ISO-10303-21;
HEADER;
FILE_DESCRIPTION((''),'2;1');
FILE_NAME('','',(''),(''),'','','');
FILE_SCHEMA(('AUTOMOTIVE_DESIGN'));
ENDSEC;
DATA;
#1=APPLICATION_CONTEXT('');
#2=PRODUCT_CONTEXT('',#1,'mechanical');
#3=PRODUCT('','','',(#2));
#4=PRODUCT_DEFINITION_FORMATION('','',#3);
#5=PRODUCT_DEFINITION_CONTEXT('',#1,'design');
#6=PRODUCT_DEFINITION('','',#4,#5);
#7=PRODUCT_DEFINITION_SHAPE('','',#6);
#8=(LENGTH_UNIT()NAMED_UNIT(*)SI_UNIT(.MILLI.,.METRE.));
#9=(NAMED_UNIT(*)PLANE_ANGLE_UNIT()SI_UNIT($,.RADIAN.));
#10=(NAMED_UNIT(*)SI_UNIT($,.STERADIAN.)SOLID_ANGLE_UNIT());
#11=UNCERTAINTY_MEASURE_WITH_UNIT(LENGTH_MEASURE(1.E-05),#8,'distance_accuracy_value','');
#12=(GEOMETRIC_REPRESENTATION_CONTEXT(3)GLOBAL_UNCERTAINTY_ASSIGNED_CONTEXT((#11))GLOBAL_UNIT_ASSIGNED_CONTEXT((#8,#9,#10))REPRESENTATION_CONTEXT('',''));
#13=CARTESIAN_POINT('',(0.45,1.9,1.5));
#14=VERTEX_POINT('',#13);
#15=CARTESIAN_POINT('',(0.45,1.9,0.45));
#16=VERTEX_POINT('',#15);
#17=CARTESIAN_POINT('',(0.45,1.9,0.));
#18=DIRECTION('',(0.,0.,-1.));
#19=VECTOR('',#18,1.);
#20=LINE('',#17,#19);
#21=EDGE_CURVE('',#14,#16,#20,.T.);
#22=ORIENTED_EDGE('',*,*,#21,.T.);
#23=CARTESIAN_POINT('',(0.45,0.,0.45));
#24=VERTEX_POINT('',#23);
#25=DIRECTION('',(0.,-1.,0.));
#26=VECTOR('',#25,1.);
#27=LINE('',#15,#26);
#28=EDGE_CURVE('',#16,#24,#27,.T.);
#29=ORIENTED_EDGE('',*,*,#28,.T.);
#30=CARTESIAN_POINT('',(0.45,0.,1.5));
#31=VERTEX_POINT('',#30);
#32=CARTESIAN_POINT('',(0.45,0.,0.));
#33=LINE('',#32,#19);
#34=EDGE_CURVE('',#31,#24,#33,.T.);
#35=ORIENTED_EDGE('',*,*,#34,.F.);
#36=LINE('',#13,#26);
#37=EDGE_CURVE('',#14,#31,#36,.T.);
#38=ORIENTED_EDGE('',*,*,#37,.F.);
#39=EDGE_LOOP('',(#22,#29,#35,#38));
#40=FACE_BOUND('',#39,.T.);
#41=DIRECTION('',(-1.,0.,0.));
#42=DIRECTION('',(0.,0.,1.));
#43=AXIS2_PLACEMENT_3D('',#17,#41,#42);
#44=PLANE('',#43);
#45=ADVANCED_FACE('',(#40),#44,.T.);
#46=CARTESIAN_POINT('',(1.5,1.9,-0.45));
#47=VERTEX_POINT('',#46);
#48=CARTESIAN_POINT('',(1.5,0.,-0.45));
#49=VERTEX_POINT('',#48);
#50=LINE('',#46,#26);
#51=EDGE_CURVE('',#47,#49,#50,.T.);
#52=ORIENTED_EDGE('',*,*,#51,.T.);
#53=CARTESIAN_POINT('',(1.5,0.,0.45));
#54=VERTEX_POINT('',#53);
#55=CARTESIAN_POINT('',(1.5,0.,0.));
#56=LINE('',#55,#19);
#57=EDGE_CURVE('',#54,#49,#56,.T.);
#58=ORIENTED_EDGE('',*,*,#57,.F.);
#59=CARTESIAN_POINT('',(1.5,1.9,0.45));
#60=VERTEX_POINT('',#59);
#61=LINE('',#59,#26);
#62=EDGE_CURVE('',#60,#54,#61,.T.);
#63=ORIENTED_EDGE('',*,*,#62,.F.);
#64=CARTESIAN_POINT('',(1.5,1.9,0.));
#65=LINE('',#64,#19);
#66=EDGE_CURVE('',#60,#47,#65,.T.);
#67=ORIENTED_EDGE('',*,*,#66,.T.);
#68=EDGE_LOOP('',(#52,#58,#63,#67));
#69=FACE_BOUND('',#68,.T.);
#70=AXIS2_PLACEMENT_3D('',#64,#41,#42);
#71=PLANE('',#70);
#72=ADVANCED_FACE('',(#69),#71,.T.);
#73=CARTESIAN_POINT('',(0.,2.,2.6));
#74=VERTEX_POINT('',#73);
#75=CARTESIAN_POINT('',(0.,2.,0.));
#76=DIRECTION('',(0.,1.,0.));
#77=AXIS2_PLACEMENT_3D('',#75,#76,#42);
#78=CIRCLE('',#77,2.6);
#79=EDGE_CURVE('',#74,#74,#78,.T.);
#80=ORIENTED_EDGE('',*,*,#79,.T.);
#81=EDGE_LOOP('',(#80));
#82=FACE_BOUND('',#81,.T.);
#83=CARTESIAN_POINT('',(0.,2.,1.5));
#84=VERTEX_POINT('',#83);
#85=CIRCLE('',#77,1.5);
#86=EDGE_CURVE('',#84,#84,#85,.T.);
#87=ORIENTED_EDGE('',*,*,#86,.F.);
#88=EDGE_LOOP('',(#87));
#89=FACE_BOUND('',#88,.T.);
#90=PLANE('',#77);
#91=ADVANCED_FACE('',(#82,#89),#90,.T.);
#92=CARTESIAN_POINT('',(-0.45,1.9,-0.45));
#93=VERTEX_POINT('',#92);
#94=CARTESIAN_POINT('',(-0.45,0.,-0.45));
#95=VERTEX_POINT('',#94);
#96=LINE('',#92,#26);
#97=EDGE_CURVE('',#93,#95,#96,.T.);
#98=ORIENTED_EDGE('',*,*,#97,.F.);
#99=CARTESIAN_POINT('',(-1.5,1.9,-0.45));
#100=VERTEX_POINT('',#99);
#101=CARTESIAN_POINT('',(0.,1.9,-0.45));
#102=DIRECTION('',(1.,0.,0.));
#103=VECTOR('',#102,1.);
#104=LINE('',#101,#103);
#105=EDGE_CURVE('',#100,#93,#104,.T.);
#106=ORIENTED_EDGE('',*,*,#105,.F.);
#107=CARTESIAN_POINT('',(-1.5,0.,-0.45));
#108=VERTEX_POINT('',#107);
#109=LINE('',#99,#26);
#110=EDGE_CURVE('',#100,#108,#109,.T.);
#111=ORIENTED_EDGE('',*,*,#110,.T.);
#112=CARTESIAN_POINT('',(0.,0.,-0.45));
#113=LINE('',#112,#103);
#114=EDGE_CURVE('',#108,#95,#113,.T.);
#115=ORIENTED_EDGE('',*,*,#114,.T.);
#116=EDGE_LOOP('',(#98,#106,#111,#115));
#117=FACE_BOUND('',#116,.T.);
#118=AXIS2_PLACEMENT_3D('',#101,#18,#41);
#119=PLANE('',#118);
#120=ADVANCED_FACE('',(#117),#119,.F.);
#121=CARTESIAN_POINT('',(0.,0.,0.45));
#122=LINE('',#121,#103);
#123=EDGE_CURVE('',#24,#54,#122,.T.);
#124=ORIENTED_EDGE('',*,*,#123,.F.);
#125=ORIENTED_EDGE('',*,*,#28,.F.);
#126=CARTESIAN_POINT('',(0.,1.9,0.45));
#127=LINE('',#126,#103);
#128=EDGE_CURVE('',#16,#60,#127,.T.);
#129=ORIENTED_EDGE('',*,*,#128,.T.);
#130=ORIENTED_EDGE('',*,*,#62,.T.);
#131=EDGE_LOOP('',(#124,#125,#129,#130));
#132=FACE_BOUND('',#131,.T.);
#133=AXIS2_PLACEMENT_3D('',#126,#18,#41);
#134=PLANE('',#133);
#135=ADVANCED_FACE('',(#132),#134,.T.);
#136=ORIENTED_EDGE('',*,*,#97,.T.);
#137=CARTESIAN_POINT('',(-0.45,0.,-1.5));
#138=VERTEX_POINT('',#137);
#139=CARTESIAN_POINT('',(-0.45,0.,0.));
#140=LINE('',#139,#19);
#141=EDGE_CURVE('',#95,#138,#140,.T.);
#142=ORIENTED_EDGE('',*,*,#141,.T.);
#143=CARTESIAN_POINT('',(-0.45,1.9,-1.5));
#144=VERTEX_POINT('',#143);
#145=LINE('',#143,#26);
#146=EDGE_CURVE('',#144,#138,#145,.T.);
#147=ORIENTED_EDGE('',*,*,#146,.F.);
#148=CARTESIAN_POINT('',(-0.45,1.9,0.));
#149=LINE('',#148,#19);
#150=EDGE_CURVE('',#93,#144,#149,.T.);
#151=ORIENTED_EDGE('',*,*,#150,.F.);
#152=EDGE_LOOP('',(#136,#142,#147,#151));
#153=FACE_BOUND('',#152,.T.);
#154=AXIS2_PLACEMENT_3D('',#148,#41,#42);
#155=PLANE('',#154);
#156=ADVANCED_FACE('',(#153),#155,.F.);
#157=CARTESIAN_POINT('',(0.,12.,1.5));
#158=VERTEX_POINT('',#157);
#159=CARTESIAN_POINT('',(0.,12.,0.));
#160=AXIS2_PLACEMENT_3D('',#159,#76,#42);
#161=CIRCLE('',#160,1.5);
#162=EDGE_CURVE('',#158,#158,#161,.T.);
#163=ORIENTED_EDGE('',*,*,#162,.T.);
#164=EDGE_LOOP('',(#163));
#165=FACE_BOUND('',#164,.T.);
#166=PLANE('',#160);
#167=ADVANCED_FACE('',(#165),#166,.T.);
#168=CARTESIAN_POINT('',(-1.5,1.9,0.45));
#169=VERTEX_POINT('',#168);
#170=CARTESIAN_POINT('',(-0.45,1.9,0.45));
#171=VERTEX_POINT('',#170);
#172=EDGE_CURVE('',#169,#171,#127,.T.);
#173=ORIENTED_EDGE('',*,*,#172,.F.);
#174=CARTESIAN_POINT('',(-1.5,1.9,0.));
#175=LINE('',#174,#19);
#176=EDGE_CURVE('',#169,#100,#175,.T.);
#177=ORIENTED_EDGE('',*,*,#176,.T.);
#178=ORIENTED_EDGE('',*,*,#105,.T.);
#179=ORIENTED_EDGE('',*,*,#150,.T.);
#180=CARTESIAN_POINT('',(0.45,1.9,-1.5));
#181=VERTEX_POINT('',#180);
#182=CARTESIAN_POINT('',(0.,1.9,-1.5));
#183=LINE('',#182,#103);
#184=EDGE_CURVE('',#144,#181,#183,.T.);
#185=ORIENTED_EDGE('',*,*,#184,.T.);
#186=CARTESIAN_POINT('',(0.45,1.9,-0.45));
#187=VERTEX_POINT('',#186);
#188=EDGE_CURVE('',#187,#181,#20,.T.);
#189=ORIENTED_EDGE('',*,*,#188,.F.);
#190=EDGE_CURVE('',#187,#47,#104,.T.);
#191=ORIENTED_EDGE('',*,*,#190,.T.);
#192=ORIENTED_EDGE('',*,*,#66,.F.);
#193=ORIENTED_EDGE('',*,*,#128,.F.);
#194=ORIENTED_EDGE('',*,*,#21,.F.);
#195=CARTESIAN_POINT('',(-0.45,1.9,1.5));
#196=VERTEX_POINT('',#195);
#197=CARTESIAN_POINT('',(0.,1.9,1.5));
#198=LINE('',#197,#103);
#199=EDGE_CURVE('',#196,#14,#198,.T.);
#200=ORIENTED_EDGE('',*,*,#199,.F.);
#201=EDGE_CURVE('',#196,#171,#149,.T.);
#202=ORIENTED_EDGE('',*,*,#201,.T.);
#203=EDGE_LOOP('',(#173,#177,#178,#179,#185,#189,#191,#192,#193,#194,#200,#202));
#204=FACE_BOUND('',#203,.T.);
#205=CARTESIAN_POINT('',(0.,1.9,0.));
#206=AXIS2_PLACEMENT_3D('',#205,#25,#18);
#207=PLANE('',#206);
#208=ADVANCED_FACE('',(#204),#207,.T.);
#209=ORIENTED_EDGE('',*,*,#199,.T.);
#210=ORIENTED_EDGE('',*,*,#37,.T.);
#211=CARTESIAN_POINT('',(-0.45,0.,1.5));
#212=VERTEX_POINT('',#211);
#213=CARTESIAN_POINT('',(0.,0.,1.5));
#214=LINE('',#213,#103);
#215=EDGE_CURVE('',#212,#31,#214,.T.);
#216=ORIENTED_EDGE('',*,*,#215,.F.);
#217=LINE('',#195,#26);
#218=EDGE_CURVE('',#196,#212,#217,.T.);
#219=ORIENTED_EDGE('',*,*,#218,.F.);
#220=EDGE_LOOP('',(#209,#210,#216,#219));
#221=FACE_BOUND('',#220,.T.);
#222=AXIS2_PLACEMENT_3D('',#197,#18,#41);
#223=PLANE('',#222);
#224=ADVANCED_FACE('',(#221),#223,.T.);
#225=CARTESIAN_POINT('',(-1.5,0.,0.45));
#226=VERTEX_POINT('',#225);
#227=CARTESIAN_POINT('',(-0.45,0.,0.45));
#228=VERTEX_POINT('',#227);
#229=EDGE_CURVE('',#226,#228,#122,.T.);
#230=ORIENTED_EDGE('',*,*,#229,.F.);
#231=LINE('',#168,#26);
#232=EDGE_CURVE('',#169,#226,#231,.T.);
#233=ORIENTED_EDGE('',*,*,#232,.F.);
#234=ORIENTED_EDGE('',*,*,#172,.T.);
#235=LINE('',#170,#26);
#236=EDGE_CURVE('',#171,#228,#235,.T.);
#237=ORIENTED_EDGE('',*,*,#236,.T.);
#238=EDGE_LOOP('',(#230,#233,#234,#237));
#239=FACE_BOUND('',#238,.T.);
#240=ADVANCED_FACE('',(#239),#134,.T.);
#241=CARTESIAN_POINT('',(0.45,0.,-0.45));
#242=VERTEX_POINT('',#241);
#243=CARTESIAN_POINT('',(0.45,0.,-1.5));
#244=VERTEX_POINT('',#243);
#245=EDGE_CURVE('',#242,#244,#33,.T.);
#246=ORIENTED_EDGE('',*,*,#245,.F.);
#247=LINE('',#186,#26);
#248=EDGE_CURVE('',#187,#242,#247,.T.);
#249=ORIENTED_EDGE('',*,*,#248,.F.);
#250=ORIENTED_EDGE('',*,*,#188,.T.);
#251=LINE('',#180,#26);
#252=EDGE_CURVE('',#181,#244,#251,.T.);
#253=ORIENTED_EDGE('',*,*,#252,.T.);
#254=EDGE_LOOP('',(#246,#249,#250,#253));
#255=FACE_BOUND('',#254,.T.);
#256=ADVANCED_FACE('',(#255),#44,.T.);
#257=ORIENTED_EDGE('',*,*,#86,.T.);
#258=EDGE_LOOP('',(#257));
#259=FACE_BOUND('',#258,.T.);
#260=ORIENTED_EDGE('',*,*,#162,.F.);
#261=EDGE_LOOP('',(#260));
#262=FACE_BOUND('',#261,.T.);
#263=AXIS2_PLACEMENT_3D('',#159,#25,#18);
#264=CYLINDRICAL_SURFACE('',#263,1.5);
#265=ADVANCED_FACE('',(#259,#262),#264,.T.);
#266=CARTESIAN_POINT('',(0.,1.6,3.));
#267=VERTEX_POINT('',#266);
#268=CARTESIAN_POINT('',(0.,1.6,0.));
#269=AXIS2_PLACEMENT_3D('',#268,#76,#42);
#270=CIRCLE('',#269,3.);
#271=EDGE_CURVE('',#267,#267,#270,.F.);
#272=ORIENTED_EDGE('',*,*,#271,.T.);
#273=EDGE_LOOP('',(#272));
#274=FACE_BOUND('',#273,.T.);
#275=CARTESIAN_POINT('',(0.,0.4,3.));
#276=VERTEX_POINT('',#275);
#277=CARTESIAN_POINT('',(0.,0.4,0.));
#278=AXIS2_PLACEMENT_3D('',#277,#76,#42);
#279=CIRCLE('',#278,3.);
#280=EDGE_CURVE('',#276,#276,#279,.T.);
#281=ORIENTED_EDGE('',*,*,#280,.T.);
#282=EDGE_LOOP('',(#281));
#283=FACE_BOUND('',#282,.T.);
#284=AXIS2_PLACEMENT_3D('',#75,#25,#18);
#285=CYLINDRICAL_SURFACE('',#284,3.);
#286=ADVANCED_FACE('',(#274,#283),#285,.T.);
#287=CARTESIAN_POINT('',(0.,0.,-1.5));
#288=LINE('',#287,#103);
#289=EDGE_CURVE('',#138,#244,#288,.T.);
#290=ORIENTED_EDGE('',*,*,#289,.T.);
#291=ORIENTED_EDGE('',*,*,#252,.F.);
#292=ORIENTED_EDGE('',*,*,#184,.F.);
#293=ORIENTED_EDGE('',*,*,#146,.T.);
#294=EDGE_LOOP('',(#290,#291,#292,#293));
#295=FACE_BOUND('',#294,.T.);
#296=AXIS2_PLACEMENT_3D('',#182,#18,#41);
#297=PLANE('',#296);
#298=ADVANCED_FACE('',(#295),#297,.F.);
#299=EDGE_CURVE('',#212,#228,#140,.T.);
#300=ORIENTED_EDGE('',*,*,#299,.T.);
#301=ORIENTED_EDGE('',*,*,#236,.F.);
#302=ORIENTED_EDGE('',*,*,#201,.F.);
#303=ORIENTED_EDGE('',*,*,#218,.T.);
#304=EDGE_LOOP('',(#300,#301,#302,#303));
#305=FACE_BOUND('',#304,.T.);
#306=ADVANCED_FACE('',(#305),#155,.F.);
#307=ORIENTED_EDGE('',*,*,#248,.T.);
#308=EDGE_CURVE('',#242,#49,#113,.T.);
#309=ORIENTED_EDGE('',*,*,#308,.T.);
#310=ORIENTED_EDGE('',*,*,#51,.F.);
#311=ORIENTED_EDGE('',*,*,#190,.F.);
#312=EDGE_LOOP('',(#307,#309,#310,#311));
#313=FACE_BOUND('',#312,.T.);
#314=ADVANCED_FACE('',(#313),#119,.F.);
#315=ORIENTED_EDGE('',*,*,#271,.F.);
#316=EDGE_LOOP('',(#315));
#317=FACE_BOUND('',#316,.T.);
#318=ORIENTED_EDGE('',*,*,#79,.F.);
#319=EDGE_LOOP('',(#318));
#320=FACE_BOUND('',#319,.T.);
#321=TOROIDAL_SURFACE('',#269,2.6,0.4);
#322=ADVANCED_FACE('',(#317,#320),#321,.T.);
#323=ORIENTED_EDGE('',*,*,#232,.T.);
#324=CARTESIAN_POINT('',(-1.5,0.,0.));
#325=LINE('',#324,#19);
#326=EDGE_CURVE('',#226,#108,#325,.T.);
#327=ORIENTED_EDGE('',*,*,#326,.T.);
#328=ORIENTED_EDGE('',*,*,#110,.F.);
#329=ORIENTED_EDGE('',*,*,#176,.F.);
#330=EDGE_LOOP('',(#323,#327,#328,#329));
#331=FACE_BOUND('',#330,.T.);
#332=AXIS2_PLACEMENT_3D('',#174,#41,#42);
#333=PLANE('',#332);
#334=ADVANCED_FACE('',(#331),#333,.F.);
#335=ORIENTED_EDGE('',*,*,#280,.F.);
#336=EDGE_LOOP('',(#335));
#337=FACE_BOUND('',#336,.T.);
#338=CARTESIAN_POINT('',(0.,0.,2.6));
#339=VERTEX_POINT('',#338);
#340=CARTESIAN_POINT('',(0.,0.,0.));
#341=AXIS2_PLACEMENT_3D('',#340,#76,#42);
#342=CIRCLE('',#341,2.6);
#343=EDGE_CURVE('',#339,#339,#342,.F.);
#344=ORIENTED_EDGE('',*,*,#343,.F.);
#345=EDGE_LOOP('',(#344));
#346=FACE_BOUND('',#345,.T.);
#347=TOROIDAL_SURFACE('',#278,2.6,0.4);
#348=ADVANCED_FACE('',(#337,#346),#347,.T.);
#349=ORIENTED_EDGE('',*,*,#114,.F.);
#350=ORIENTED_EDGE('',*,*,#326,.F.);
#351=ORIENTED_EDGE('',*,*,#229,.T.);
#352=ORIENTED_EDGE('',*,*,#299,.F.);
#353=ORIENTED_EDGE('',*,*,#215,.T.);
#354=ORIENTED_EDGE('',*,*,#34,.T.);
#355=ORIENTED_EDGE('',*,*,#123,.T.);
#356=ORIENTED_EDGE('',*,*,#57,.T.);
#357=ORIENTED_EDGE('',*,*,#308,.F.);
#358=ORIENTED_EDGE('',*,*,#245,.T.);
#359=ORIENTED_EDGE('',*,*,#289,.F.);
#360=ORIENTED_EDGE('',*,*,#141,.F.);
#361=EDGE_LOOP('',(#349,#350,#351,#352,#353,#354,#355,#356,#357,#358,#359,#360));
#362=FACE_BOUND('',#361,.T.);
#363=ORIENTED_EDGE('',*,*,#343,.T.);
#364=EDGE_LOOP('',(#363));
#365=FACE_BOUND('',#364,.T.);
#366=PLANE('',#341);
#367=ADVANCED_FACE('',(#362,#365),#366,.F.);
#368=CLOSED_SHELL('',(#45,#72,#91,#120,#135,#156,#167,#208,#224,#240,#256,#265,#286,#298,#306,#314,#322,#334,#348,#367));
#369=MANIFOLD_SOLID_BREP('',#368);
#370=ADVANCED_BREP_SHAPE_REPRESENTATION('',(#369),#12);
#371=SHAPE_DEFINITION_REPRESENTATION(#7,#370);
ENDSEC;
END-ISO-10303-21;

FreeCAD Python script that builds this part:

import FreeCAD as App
import Part
import Sketcher
from FreeCAD import Vector
Q = App.Units.Quantity


def edges_at(feature, points):
    """Names of the edges that pass closest to the given points."""
    edges = feature.Shape.Edges
    near = lambda p: min(range(len(edges)), key=lambda i: edges[i].distToShape(Part.Vertex(*p))[0])
    return sorted({f"Edge{near(p) + 1}" for p in points})


def add_polygon(sketch, points):
    """Adds a closed chain of lines whose ends are joined by coincident constraints."""
    first, n = sketch.GeometryCount, len(points)
    for a, b in zip(points, points[1:] + points[:1]):
        sketch.addGeometry(Part.LineSegment(App.Vector(*a, 0), App.Vector(*b, 0)), False)
    for i in range(n):
        sketch.addConstraint(Sketcher.Constraint("Coincident", first + i, 2, first + (i + 1) % n, 1))

doc = App.newDocument("Part")
body = doc.addObject("PartDesign::Body", "Body")

sketch1 = doc.addObject("Sketcher::SketchObject", "Sketch")
body.addObject(sketch1)
sketch1.AttachmentSupport = (doc.XZ_Plane, [""])
sketch1.MapMode = "FlatFace"
sketch1.addGeometry(Part.Circle(Vector(0, 0, 0), Vector(0, 0, 1), 3), False)
sketch1.addConstraint([
    Sketcher.Constraint("Coincident", 0, 3, -1, 1),
    Sketcher.Constraint("Diameter", 0, Q("6 mm")),
])
pad1 = doc.addObject("PartDesign::Pad", "Pad")
body.addObject(pad1)
pad1.Profile = sketch1
pad1.Length = 2
pad1.Reversed = True

sketch2 = doc.addObject("Sketcher::SketchObject", "Sketch001")
body.addObject(sketch2)
sketch2.AttachmentSupport = (doc.XZ_Plane, [""])
sketch2.MapMode = "FlatFace"
sketch2.AttachmentOffset = App.Placement(Vector(0, 0, -2), App.Rotation())
sketch2.addGeometry(Part.Circle(Vector(0, 0, 0), Vector(0, 0, 1), 1.5), False)
sketch2.addConstraint([
    Sketcher.Constraint("Coincident", 0, 3, -1, 1),
    Sketcher.Constraint("Diameter", 0, Q("3 mm")),
])
pad2 = doc.addObject("PartDesign::Pad", "Pad001")
body.addObject(pad2)
pad2.Profile = sketch2
pad2.Length = 10
pad2.Reversed = True

sketch3 = doc.addObject("Sketcher::SketchObject", "Sketch002")
body.addObject(sketch3)
sketch3.AttachmentSupport = (doc.XZ_Plane, [""])
sketch3.MapMode = "FlatFace"
add_polygon(sketch3, [(0.5, 0.5), (0.5, 1.5), (-0.5, 1.5), (-0.5, 0.5), (-1.5, 0.5), (-1.5, -0.5), (-0.5, -0.5), (-0.5, -1.5), (0.5, -1.5), (0.5, -0.5), (1.5, -0.5), (1.5, 0.5)])
sketch3.addConstraint([
    Sketcher.Constraint("Vertical", 0),
    Sketcher.Constraint("Horizontal", 1),
    Sketcher.Constraint("Vertical", 2),
    Sketcher.Constraint("Horizontal", 3),
    Sketcher.Constraint("Vertical", 4),
    Sketcher.Constraint("Horizontal", 5),
    Sketcher.Constraint("Vertical", 6),
    Sketcher.Constraint("Horizontal", 7),
    Sketcher.Constraint("Vertical", 8),
    Sketcher.Constraint("Horizontal", 9),
    Sketcher.Constraint("Vertical", 10),
    Sketcher.Constraint("Horizontal", 11),
    Sketcher.Constraint("Symmetric", 0, 2, 6, 2, -1, 1),
    Sketcher.Constraint("Symmetric", 2, 2, 8, 2, -1, 1),
    Sketcher.Constraint("Symmetric", 4, 2, 10, 2, -1, 1),
    Sketcher.Constraint("Symmetric", 5, 2, 8, 2, -2),
    Sketcher.Constraint("Equal", 11, 0),
    Sketcher.Constraint("Equal", 7, 4),
    Sketcher.Constraint("DistanceX", 1, 2, 1, 1, Q("0.9 mm")),
    Sketcher.Constraint("DistanceY", 6, 2, 1, 2, Q("3 mm")),
])
pocket1 = doc.addObject("PartDesign::Pocket", "Pocket")
body.addObject(pocket1)
pocket1.Profile = sketch3
pocket1.Length = 1.9
doc.recompute()

fillet = doc.addObject("PartDesign::Fillet", "Fillet")
body.addObject(fillet)
fillet.Base = (pocket1, edges_at(pocket1, [(-3, 0, 0), (-3, 2, 0)]))
fillet.Radius = 0.4

doc.recompute()
